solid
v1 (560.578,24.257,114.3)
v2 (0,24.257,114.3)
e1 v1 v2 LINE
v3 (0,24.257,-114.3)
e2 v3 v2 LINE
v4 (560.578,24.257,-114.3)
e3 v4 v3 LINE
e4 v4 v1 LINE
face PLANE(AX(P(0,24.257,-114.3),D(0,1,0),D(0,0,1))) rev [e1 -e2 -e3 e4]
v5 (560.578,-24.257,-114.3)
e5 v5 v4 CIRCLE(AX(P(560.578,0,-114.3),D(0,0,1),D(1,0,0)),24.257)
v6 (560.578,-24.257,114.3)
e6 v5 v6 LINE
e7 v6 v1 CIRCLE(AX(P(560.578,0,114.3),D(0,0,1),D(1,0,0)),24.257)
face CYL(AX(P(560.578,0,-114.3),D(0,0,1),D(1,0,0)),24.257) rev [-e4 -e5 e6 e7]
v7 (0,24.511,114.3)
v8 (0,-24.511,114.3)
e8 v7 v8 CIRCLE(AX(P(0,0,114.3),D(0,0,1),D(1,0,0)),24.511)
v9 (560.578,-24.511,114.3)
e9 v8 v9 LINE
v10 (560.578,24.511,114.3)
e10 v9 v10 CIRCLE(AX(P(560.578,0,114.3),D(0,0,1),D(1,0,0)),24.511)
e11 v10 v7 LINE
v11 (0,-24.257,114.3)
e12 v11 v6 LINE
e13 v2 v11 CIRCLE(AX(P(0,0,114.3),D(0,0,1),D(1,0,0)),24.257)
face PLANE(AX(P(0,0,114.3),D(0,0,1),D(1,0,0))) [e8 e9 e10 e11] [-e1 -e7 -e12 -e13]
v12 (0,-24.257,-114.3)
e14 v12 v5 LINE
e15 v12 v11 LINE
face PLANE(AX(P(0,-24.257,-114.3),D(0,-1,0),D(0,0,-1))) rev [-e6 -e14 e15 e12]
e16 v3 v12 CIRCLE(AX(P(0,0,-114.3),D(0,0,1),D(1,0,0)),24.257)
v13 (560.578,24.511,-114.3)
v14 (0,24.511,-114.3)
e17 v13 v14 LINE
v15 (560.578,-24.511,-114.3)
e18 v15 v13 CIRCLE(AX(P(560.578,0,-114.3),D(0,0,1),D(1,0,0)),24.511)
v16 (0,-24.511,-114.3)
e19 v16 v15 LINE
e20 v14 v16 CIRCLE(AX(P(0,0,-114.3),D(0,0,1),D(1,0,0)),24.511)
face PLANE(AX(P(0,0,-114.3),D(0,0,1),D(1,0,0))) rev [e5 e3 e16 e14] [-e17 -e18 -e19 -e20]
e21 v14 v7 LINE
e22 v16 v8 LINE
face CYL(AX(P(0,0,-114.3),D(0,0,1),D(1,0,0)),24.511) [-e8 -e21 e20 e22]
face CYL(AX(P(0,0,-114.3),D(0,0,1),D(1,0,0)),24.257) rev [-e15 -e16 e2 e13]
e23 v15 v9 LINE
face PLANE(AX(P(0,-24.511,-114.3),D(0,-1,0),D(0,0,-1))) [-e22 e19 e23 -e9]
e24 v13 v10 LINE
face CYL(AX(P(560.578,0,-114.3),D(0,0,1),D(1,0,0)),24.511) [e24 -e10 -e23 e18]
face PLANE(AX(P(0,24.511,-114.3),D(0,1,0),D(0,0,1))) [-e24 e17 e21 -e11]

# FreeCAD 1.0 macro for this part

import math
import FreeCAD as App
import Part
import Sketcher
from FreeCAD import Vector
Q = App.Units.Quantity

doc = App.newDocument("Part")
body = doc.addObject("PartDesign::Body", "Body")

# Sketch on XY plane
sketch1 = body.newObject("Sketcher::SketchObject", "Sketch")
sketch1.AttachmentSupport = (doc.getObject("XY_Plane"), [""])
sketch1.MapMode = "FlatFace"
sketch1.addGeometry(Part.LineSegment(Vector(561, 25, 0), Vector(0, 25, 0)), False)
sketch1.addGeometry(Part.ArcOfCircle(Part.Circle(Vector(0, 0, 0), Vector(0, 0, 1), 25), math.radians(90), math.radians(270)), False)
sketch1.addGeometry(Part.LineSegment(Vector(0, -25, 0), Vector(561, -25, 0)), False)
sketch1.addGeometry(Part.ArcOfCircle(Part.Circle(Vector(561, 0, 0), Vector(0, 0, 1), 25), math.radians(-90), math.radians(90)), False)
sketch1.addGeometry(Part.LineSegment(Vector(0, 24, 0), Vector(561, 24, 0)), False)
sketch1.addGeometry(Part.ArcOfCircle(Part.Circle(Vector(561, 0, 0), Vector(0, 0, 1), 24), math.radians(-90), math.radians(90)), False)
sketch1.addGeometry(Part.LineSegment(Vector(561, -24, 0), Vector(0, -24, 0)), False)
sketch1.addGeometry(Part.ArcOfCircle(Part.Circle(Vector(0, 0, 0), Vector(0, 0, 1), 24), math.radians(90), math.radians(270)), False)
sketch1.addConstraint(Sketcher.Constraint("Tangent", 0, 2, 1, 1))
sketch1.addConstraint(Sketcher.Constraint("Tangent", 1, 2, 2, 1))
sketch1.addConstraint(Sketcher.Constraint("Tangent", 2, 2, 3, 1))
sketch1.addConstraint(Sketcher.Constraint("Tangent", 3, 2, 0, 1))
sketch1.addConstraint(Sketcher.Constraint("Tangent", 4, 2, 5, 2))
sketch1.addConstraint(Sketcher.Constraint("Tangent", 5, 1, 6, 1))
sketch1.addConstraint(Sketcher.Constraint("Tangent", 6, 2, 7, 2))
sketch1.addConstraint(Sketcher.Constraint("Tangent", 7, 1, 4, 1))
sketch1.addConstraint(Sketcher.Constraint("Horizontal", 0))
sketch1.addConstraint(Sketcher.Constraint("Horizontal", 2))
sketch1.addConstraint(Sketcher.Constraint("Horizontal", 4))
sketch1.addConstraint(Sketcher.Constraint("Horizontal", 6))
sketch1.addConstraint(Sketcher.Constraint("Coincident", 1, 3, -1, 1))
sketch1.addConstraint(Sketcher.Constraint("Coincident", 7, 3, -1, 1))
sketch1.addConstraint(Sketcher.Constraint("Vertical", 5, 3, 2, 2))
sketch1.addConstraint(Sketcher.Constraint("Radius", 1, Q("0.965 in")))
sketch1.addConstraint(Sketcher.Constraint("Radius", 5, Q("0.955 in")))
sketch1.addConstraint(Sketcher.Constraint("DistanceX", 0, 2, 0, 1, Q("22.07 in")))
pad1 = body.newObject("PartDesign::Pad", "Pad")
pad1.Profile = sketch1
pad1.Length = Q("9 in")
pad1.Midplane = True

doc.recompute()
